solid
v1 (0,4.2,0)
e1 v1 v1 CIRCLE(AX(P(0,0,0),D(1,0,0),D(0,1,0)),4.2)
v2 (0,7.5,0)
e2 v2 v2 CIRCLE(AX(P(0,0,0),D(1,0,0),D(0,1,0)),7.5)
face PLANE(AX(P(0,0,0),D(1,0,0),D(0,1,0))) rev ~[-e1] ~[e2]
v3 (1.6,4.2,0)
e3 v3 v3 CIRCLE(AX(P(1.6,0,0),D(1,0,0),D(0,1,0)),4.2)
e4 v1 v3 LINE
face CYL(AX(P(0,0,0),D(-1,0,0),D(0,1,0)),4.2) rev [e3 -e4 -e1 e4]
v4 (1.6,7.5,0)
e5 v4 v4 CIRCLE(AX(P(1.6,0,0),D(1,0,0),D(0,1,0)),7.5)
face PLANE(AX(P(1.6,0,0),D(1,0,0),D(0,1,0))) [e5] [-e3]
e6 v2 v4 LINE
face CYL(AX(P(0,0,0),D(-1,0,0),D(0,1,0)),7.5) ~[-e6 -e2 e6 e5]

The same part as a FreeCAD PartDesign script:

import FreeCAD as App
import Part
import Sketcher
from FreeCAD import Vector

doc = App.newDocument("Part")
body = doc.addObject("PartDesign::Body", "Body")

# Sketch on YZ plane
sketch1 = body.newObject("Sketcher::SketchObject", "Sketch")
sketch1.AttachmentSupport = (doc.getObject("YZ_Plane"), [""])
sketch1.MapMode = "FlatFace"
sketch1.addGeometry(Part.Circle(Vector(0, 0, 0), Vector(0, 0, 1), 7.5), False)
sketch1.addGeometry(Part.Circle(Vector(0, 0, 0), Vector(0, 0, 1), 4.2), False)
sketch1.addConstraint(Sketcher.Constraint("Coincident", 0, 3, -1, 1))
sketch1.addConstraint(Sketcher.Constraint("Coincident", 1, 3, -1, 1))
sketch1.addConstraint(Sketcher.Constraint("Diameter", 0, 15.0))
sketch1.addConstraint(Sketcher.Constraint("Diameter", 1, 8.4))
pad1 = body.newObject("PartDesign::Pad", "Pad")
pad1.Profile = sketch1
pad1.Length = 1.6

doc.recompute()
